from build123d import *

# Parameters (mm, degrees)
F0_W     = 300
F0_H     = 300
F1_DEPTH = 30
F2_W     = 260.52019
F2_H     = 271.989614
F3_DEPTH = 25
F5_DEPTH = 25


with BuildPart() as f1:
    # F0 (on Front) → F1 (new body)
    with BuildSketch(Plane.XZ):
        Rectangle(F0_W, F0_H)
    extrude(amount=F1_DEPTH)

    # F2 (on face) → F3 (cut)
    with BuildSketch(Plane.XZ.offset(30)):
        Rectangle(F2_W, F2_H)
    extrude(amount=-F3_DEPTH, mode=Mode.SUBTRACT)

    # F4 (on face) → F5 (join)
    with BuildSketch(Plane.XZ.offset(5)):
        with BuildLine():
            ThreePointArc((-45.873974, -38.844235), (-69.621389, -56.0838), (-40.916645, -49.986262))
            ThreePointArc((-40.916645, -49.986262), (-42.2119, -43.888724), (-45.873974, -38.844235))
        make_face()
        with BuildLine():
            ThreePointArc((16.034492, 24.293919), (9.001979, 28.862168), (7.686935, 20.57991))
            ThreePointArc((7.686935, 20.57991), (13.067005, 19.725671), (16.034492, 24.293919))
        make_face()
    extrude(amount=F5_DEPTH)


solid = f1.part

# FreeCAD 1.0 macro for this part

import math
import FreeCAD as App
import Part
import Sketcher
Q = App.Units.Quantity

doc = App.newDocument("Part")
body = doc.addObject("PartDesign::Body", "Body")

# Sketch on XZ plane
sketch1 = body.newObject("Sketcher::SketchObject", "Sketch")
sketch1.AttachmentSupport = (doc.getObject("XZ_Plane"), [""])
sketch1.MapMode = "FlatFace"
sketch1.addGeometry(Part.LineSegment(App.Vector(-150, 150, 0), App.Vector(-150, -150, 0)), False)
sketch1.addGeometry(Part.LineSegment(App.Vector(-150, -150, 0), App.Vector(150, -150, 0)), False)
sketch1.addGeometry(Part.LineSegment(App.Vector(150, -150, 0), App.Vector(150, 150, 0)), False)
sketch1.addGeometry(Part.LineSegment(App.Vector(150, 150, 0), App.Vector(-150, 150, 0)), False)
sketch1.addConstraint(Sketcher.Constraint("Coincident", 0, 2, 1, 1))
sketch1.addConstraint(Sketcher.Constraint("Coincident", 1, 2, 2, 1))
sketch1.addConstraint(Sketcher.Constraint("Coincident", 2, 2, 3, 1))
sketch1.addConstraint(Sketcher.Constraint("Coincident", 3, 2, 0, 1))
sketch1.addConstraint(Sketcher.Constraint("Vertical", 0))
sketch1.addConstraint(Sketcher.Constraint("Horizontal", 1))
sketch1.addConstraint(Sketcher.Constraint("Vertical", 2))
sketch1.addConstraint(Sketcher.Constraint("Horizontal", 3))
sketch1.addConstraint(Sketcher.Constraint("Symmetric", 0, 2, 2, 2, -1, 1))
sketch1.addConstraint(Sketcher.Constraint("Equal", 3, 0))
sketch1.addConstraint(Sketcher.Constraint("DistanceX", 1, 1, 1, 2, Q("300 mm")))
pad1 = body.newObject("PartDesign::Pad", "Pad")
pad1.Profile = sketch1
pad1.Length = 30

# Sketch on XZ plane
sketch2 = body.newObject("Sketcher::SketchObject", "Sketch001")
sketch2.AttachmentSupport = (doc.getObject("XZ_Plane"), [""])
sketch2.MapMode = "FlatFace"
sketch2.AttachmentOffset = App.Placement(App.Vector(0, 0, 30), App.Rotation())
sketch2.addGeometry(Part.LineSegment(App.Vector(-130.260095, 135.994807, 0), App.Vector(-130.260095, -135.994807, 0)), False)
sketch2.addGeometry(Part.LineSegment(App.Vector(-130.260095, -135.994807, 0), App.Vector(130.260095, -135.994807, 0)), False)
sketch2.addGeometry(Part.LineSegment(App.Vector(130.260095, -135.994807, 0), App.Vector(130.260095, 135.994807, 0)), False)
sketch2.addGeometry(Part.LineSegment(App.Vector(130.260095, 135.994807, 0), App.Vector(-130.260095, 135.994807, 0)), False)
sketch2.addConstraint(Sketcher.Constraint("Coincident", 0, 2, 1, 1))
sketch2.addConstraint(Sketcher.Constraint("Coincident", 1, 2, 2, 1))
sketch2.addConstraint(Sketcher.Constraint("Coincident", 2, 2, 3, 1))
sketch2.addConstraint(Sketcher.Constraint("Coincident", 3, 2, 0, 1))
sketch2.addConstraint(Sketcher.Constraint("Vertical", 0))
sketch2.addConstraint(Sketcher.Constraint("Horizontal", 1))
sketch2.addConstraint(Sketcher.Constraint("Vertical", 2))
sketch2.addConstraint(Sketcher.Constraint("Horizontal", 3))
sketch2.addConstraint(Sketcher.Constraint("Symmetric", 0, 2, 2, 2, -1, 1))
sketch2.addConstraint(Sketcher.Constraint("DistanceX", 1, 1, 1, 2, Q("260.52019 mm")))
sketch2.addConstraint(Sketcher.Constraint("DistanceY", 0, 2, 0, 1, Q("271.989614 mm")))
pocket1 = body.newObject("PartDesign::Pocket", "Pocket")
pocket1.Profile = sketch2
pocket1.Length = 25

# Sketch on XZ plane
sketch3 = body.newObject("Sketcher::SketchObject", "Sketch002")
sketch3.AttachmentSupport = (doc.getObject("XZ_Plane"), [""])
sketch3.MapMode = "FlatFace"
sketch3.AttachmentOffset = App.Placement(App.Vector(0, 0, 5), App.Rotation())
sketch3.addGeometry(Part.ArcOfCircle(Part.Circle(App.Vector(-55.916645, -49.986262, 0), App.Vector(0, 0, 1), 15), math.radians(47.970635), math.radians(359.999998)), False)
sketch3.addGeometry(Part.ArcOfCircle(Part.Circle(App.Vector(-55.916644, -49.986261, 0), App.Vector(0, 0, 1), 14.999999), math.radians(-0.000002), math.radians(47.970635)), False)
sketch3.addGeometry(Part.ArcOfCircle(Part.Circle(App.Vector(11.034492, 24.293919, 0), App.Vector(0, 0, 1), 5), math.radians(-0.000006), math.radians(227.970641)), False)
sketch3.addGeometry(Part.ArcOfCircle(Part.Circle(App.Vector(11.034492, 24.293919, 0), App.Vector(0, 0, 1), 5), math.radians(-132.029362), math.radians(-0.000002)), False)
sketch3.addConstraint(Sketcher.Constraint("Tangent", 0, 1, 1, 2))
sketch3.addConstraint(Sketcher.Constraint("Coincident", 1, 1, 0, 2))
sketch3.addConstraint(Sketcher.Constraint("Tangent", 2, 1, 3, 2))
sketch3.addConstraint(Sketcher.Constraint("Coincident", 3, 1, 2, 2))
sketch3.addConstraint(Sketcher.Constraint("Horizontal", 0, 3, 1, 1))
sketch3.addConstraint(Sketcher.Constraint("Horizontal", 3, 3, 2, 1))
sketch3.addConstraint(Sketcher.Constraint("Radius", 0, Q("15 mm")))
sketch3.addConstraint(Sketcher.Constraint("Radius", 2, Q("5 mm")))
sketch3.addConstraint(Sketcher.Constraint("DistanceY", 0, 3, -1, 1, Q("49.986262 mm")))
sketch3.addConstraint(Sketcher.Constraint("DistanceX", -1, 1, 2, 3, Q("11.034492 mm")))
sketch3.addConstraint(Sketcher.Constraint("DistanceY", -1, 1, 2, 3, Q("24.293919 mm")))
sketch3.addConstraint(Sketcher.Constraint("DistanceY", -1, 1, 3, 1, Q("20.57991 mm")))
sketch3.addConstraint(Sketcher.Constraint("DistanceX", 1, 3, 0, 1, Q("10.04267 mm")))
sketch3.addConstraint(Sketcher.Constraint("DistanceX", 0, 1, 3, 1, Q("53.560909 mm")))
pad2 = body.newObject("PartDesign::Pad", "Pad001")
pad2.Profile = sketch3
pad2.Length = 25

doc.recompute()
